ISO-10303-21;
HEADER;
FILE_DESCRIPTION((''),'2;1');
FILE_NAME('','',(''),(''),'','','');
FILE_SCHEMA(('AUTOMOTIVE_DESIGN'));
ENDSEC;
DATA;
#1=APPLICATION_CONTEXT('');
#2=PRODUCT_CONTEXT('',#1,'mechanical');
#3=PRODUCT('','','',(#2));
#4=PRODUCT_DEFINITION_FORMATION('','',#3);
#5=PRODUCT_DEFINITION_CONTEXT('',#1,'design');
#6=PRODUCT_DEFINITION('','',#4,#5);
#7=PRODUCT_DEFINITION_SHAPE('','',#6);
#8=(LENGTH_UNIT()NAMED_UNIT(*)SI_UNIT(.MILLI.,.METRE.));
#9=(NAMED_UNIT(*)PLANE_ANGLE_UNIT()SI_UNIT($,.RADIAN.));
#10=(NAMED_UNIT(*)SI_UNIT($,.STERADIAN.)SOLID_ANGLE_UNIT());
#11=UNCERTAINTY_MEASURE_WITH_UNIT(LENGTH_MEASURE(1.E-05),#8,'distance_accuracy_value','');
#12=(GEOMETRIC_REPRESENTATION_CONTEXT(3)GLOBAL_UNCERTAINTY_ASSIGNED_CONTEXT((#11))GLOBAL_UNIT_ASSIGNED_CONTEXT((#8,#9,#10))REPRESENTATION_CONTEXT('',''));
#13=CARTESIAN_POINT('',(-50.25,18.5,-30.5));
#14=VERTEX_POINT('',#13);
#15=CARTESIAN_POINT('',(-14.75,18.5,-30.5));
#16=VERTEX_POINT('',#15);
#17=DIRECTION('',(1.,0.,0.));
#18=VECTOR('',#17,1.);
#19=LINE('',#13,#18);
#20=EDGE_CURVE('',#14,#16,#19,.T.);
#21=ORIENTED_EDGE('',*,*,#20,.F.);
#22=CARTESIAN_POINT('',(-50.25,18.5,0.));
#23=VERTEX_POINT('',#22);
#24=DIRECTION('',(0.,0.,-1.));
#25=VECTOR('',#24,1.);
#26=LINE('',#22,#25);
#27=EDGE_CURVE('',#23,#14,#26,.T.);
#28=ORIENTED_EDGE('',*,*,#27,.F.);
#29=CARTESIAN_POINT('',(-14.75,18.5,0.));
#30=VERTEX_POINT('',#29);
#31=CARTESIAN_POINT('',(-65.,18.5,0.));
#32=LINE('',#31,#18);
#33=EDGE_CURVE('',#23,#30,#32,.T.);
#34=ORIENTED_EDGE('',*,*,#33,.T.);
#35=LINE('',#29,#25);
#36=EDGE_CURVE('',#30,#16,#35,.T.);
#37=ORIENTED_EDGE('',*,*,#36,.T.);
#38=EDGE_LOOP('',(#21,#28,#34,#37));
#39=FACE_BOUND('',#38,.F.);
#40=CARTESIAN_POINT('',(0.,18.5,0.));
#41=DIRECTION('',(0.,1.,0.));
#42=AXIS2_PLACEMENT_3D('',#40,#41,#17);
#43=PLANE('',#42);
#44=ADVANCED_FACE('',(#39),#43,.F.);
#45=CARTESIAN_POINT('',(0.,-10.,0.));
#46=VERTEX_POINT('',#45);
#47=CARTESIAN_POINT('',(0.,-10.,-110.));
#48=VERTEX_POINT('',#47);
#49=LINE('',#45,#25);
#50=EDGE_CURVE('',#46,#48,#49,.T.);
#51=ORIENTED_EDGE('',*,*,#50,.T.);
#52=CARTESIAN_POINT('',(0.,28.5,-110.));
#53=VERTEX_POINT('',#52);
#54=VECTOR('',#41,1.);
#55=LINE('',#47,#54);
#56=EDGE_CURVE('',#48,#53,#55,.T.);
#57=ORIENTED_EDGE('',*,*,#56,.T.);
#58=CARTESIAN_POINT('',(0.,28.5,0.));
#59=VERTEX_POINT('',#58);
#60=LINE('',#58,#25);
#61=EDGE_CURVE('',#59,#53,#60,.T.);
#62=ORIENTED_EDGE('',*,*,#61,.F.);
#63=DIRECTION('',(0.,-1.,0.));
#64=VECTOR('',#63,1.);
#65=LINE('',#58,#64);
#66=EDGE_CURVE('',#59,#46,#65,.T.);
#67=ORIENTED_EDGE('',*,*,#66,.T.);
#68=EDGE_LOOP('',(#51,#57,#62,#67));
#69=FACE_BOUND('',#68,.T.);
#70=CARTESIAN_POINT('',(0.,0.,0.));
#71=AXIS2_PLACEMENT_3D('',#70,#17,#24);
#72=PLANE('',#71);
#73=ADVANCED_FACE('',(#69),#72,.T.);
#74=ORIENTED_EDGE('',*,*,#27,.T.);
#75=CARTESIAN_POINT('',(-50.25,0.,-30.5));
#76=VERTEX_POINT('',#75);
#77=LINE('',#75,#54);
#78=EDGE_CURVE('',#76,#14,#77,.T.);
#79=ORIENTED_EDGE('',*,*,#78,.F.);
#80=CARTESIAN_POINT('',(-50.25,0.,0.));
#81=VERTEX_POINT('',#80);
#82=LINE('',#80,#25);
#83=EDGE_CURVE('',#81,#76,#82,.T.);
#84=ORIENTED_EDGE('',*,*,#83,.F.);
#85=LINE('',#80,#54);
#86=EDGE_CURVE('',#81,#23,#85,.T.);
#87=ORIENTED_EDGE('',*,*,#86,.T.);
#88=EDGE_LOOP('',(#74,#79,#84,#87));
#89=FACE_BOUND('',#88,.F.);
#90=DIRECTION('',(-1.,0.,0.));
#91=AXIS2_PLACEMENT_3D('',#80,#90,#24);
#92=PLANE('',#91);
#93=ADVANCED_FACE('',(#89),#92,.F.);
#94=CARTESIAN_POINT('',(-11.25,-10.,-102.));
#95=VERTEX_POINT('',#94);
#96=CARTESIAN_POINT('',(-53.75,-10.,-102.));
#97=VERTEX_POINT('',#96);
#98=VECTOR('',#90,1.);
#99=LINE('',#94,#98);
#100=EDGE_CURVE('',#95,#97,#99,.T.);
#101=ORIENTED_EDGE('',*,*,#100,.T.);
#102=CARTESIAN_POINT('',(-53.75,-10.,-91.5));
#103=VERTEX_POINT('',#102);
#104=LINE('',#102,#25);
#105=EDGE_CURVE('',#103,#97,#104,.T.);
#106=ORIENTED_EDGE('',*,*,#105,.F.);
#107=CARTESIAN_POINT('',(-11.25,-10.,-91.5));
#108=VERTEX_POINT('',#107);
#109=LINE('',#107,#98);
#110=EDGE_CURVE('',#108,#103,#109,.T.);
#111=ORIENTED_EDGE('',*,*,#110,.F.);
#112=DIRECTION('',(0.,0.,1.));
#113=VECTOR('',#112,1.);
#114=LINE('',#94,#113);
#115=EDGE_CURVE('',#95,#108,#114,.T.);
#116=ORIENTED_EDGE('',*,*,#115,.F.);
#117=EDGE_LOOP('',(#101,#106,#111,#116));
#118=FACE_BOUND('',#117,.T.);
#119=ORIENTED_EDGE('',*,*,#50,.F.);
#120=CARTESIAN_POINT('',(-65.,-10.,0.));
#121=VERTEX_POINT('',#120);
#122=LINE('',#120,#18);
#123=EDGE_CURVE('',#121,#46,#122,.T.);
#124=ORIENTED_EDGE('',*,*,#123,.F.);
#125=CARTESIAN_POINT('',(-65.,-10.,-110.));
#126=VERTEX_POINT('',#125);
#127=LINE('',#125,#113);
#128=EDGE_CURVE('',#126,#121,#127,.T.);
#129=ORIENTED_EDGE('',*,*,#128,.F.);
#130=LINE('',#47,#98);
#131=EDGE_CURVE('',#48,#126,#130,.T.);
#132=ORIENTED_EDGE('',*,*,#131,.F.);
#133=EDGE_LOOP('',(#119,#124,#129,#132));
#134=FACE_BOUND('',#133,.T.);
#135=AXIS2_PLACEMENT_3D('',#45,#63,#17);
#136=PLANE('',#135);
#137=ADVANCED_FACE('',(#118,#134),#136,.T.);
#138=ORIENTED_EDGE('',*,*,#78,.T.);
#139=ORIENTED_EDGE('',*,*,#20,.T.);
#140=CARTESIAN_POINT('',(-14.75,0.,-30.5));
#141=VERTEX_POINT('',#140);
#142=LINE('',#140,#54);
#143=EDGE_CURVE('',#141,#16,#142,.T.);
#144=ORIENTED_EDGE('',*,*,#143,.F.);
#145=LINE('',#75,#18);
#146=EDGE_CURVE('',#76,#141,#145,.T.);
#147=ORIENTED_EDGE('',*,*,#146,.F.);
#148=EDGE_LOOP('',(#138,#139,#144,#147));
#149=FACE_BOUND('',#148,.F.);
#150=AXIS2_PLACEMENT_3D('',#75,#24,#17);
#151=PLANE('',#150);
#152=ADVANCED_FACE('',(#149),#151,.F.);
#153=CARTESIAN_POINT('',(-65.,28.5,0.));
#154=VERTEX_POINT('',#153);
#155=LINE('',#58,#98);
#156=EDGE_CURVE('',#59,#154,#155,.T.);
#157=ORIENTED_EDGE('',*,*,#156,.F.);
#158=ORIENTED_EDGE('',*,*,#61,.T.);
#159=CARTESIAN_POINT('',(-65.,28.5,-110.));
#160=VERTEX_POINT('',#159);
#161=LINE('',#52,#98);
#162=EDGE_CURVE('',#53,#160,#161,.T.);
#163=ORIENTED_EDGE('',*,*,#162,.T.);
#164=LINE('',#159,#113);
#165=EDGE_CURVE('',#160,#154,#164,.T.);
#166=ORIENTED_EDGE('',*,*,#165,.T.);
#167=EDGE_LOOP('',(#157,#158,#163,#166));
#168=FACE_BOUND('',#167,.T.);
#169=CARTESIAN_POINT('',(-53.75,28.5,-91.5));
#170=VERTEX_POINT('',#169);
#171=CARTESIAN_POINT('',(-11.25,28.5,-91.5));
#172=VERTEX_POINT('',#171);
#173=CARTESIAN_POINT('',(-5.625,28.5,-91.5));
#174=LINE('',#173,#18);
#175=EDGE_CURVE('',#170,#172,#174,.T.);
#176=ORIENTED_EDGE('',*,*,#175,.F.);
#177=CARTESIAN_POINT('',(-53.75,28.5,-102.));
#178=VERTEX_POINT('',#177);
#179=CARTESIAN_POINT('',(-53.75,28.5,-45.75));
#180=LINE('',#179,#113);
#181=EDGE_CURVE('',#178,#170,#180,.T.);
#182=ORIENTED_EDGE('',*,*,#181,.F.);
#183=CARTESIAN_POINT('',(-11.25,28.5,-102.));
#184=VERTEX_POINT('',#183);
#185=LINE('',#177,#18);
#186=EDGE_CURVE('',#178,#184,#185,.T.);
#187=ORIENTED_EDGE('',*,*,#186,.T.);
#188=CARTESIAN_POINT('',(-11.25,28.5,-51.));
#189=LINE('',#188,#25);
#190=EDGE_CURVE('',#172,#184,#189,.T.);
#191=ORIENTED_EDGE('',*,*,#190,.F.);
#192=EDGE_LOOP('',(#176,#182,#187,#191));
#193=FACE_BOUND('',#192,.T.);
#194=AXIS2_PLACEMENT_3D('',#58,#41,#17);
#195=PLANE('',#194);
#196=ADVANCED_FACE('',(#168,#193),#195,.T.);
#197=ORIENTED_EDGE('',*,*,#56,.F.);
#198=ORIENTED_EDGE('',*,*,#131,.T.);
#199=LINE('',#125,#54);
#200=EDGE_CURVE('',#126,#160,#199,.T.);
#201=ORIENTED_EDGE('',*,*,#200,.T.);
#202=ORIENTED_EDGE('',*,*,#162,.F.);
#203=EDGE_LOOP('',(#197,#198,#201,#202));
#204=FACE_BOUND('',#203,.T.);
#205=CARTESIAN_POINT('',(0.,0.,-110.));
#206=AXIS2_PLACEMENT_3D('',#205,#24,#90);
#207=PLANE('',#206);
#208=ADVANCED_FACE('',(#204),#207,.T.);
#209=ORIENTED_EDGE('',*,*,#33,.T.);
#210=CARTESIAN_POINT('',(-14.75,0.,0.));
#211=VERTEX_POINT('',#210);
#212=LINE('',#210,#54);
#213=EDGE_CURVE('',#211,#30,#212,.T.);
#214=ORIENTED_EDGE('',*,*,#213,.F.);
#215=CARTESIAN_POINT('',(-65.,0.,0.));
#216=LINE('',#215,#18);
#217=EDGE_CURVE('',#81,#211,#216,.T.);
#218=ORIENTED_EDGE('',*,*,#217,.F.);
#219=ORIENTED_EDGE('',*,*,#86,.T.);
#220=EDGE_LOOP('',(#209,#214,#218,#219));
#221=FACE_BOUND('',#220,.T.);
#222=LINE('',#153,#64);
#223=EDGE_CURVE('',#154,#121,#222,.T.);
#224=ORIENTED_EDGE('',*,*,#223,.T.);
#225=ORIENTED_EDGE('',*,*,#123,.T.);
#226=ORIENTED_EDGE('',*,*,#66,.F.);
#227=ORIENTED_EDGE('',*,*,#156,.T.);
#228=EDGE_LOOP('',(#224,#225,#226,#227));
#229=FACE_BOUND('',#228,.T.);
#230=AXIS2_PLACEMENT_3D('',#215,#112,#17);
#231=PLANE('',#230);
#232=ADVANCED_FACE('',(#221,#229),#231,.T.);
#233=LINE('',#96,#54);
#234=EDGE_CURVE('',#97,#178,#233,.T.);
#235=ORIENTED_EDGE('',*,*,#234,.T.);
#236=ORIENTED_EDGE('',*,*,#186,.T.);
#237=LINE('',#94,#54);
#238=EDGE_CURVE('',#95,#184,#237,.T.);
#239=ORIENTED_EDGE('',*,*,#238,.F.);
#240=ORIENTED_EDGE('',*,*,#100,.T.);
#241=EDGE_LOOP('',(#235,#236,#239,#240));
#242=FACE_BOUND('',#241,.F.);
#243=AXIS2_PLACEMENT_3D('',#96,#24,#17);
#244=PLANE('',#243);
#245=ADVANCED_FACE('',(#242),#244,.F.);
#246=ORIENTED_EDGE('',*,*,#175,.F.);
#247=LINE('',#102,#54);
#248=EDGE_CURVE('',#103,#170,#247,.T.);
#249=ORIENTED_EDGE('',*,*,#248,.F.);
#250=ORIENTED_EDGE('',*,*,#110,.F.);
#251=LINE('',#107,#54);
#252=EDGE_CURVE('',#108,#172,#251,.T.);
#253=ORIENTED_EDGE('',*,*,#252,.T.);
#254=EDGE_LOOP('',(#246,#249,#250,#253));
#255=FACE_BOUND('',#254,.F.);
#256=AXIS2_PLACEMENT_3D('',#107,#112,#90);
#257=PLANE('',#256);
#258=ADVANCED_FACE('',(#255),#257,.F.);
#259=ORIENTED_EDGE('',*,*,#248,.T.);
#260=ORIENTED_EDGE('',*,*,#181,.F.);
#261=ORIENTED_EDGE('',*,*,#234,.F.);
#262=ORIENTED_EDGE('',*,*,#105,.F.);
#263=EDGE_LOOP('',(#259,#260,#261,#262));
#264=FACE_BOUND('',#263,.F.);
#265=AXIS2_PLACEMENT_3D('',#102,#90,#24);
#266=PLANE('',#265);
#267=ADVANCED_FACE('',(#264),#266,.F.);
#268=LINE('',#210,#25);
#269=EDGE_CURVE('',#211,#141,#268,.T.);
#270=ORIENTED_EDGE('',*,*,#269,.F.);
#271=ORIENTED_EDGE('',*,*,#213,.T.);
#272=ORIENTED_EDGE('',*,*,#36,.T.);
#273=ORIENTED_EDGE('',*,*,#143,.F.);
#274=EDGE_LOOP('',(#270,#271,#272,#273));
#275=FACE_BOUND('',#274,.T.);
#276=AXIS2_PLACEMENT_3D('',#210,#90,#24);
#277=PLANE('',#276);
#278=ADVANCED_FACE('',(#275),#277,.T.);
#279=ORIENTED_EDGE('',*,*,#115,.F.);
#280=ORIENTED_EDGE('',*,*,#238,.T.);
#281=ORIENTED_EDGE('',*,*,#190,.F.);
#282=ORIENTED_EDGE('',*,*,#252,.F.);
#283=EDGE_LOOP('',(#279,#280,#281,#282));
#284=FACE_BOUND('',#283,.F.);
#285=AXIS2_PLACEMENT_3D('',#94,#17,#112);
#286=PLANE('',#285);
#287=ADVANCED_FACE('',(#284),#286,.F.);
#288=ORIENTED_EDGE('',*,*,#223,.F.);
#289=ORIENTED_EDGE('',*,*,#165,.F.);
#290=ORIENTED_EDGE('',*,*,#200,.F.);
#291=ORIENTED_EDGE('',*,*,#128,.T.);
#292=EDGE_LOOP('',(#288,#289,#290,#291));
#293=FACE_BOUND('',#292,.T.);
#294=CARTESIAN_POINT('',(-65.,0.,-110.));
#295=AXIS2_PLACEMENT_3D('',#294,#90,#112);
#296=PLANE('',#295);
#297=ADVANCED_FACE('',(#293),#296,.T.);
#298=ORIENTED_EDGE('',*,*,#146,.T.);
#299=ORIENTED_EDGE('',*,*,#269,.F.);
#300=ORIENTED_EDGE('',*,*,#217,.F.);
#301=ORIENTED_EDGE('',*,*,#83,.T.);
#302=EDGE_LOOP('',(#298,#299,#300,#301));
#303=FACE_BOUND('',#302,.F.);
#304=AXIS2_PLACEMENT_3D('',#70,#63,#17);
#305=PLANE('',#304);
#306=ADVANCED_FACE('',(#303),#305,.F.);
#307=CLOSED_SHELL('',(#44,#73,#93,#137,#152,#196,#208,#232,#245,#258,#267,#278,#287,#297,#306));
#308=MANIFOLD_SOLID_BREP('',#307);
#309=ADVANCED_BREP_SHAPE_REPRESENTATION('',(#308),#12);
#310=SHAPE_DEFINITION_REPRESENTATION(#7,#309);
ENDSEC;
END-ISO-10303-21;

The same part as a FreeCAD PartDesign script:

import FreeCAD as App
import Part
import Sketcher
from FreeCAD import Vector

doc = App.newDocument("Part")
body = doc.addObject("PartDesign::Body", "Body")

sketch1 = body.newObject("Sketcher::SketchObject", "Sketch")
sketch1.AttachmentSupport = (doc.getObject("XZ_Plane"), [""])
sketch1.MapMode = "FlatFace"
sketch1.addGeometry([
    Part.LineSegment(Vector(-65, -110, 0), Vector(-65, 0, 0)),
    Part.LineSegment(Vector(-65, 0, 0), Vector(-50, 0, 0)),
    Part.LineSegment(Vector(-50, 0, 0), Vector(-50, -30, 0)),
    Part.LineSegment(Vector(-50, -30, 0), Vector(-15, -30, 0)),
    Part.LineSegment(Vector(-15, -30, 0), Vector(-15, 0, 0)),
    Part.LineSegment(Vector(-15, 0, 0), Vector(0, 0, 0)),
    Part.LineSegment(Vector(0, 0, 0), Vector(0, -110, 0)),
    Part.LineSegment(Vector(0, -110, 0), Vector(-65, -110, 0)),
], False)
sketch1.addConstraint([
    Sketcher.Constraint("Coincident", 0, 2, 1, 1),
    Sketcher.Constraint("Coincident", 1, 2, 2, 1),
    Sketcher.Constraint("Coincident", 2, 2, 3, 1),
    Sketcher.Constraint("Coincident", 3, 2, 4, 1),
    Sketcher.Constraint("Coincident", 4, 2, 5, 1),
    Sketcher.Constraint("Coincident", 5, 2, 6, 1),
    Sketcher.Constraint("Coincident", 6, 2, 7, 1),
    Sketcher.Constraint("Coincident", 7, 2, 0, 1),
    Sketcher.Constraint("Vertical", 0),
    Sketcher.Constraint("Horizontal", 1),
    Sketcher.Constraint("Vertical", 2),
    Sketcher.Constraint("Horizontal", 3),
    Sketcher.Constraint("Vertical", 4),
    Sketcher.Constraint("Horizontal", 5),
    Sketcher.Constraint("Vertical", 6),
    Sketcher.Constraint("Horizontal", 7),
    Sketcher.Constraint("Coincident", 5, 2, -1, 1),
    Sketcher.Constraint("PointOnObject", 0, 2, -1),
    Sketcher.Constraint("Equal", 1, 5),
    Sketcher.Constraint("DistanceX", 7, 2, 7, 1, 65.0),
    Sketcher.Constraint("DistanceY", 0, 1, 0, 2, 110.0),
    Sketcher.Constraint("DistanceY", 2, 2, 2, 1, 30.5),
    Sketcher.Constraint("DistanceX", 1, 1, 1, 2, 14.75),
])
pad1 = body.newObject("PartDesign::Pad", "Pad")
pad1.Profile = sketch1
pad1.Length = 18.5
pad1.Reversed = True

sketch2 = body.newObject("Sketcher::SketchObject", "Sketch001")
sketch2.AttachmentSupport = (doc.getObject("XZ_Plane"), [""])
sketch2.MapMode = "FlatFace"
sketch2.AttachmentOffset = App.Placement(Vector(0, 0, -18.5), App.Rotation())
sketch2.addGeometry([
    Part.LineSegment(Vector(0, 0, 0), Vector(0, -110, 0)),
    Part.LineSegment(Vector(0, -110, 0), Vector(-65, -110, 0)),
    Part.LineSegment(Vector(-65, -110, 0), Vector(-65, 0, 0)),
    Part.LineSegment(Vector(-65, 0, 0), Vector(0, 0, 0)),
], False)
sketch2.addConstraint([
    Sketcher.Constraint("Coincident", 0, 2, 1, 1),
    Sketcher.Constraint("Coincident", 1, 2, 2, 1),
    Sketcher.Constraint("Coincident", 2, 2, 3, 1),
    Sketcher.Constraint("Coincident", 3, 2, 0, 1),
    Sketcher.Constraint("Vertical", 0),
    Sketcher.Constraint("Horizontal", 1),
    Sketcher.Constraint("Vertical", 2),
    Sketcher.Constraint("Horizontal", 3),
    Sketcher.Constraint("Coincident", 3, 2, -1, 1),
    Sketcher.Constraint("DistanceX", 1, 2, 1, 1, 65.0),
    Sketcher.Constraint("DistanceY", 0, 2, 0, 1, 110.0),
])
pad2 = body.newObject("PartDesign::Pad", "Pad001")
pad2.Profile = sketch2
pad2.Length = 10
pad2.Reversed = True

sketch3 = body.newObject("Sketcher::SketchObject", "Sketch002")
sketch3.AttachmentSupport = (doc.getObject("XZ_Plane"), [""])
sketch3.MapMode = "FlatFace"
sketch3.addGeometry([
    Part.LineSegment(Vector(0, -110, 0), Vector(0, 0, 0)),
    Part.LineSegment(Vector(0, 0, 0), Vector(-65, 0, 0)),
    Part.LineSegment(Vector(-65, 0, 0), Vector(-65, -110, 0)),
    Part.LineSegment(Vector(-65, -110, 0), Vector(0, -110, 0)),
], False)
sketch3.addConstraint([
    Sketcher.Constraint("Coincident", 0, 2, 1, 1),
    Sketcher.Constraint("Coincident", 1, 2, 2, 1),
    Sketcher.Constraint("Coincident", 2, 2, 3, 1),
    Sketcher.Constraint("Coincident", 3, 2, 0, 1),
    Sketcher.Constraint("Vertical", 0),
    Sketcher.Constraint("Horizontal", 1),
    Sketcher.Constraint("Vertical", 2),
    Sketcher.Constraint("Horizontal", 3),
    Sketcher.Constraint("Coincident", 0, 2, -1, 1),
    Sketcher.Constraint("DistanceX", 1, 2, 1, 1, 65.0),
    Sketcher.Constraint("DistanceY", 0, 1, 0, 2, 110.0),
])
pad3 = body.newObject("PartDesign::Pad", "Pad002")
pad3.Profile = sketch3
pad3.Length = 10

sketch4 = body.newObject("Sketcher::SketchObject", "Sketch003")
sketch4.AttachmentSupport = (doc.getObject("XZ_Plane"), [""])
sketch4.MapMode = "FlatFace"
sketch4.AttachmentOffset = App.Placement(Vector(0, 0, 10), App.Rotation())
sketch4.addGeometry([
    Part.LineSegment(Vector(-54, -102, 0), Vector(-11, -102, 0)),
    Part.LineSegment(Vector(-11, -102, 0), Vector(-11, -92, 0)),
    Part.LineSegment(Vector(-11, -92, 0), Vector(-54, -92, 0)),
    Part.LineSegment(Vector(-54, -92, 0), Vector(-54, -102, 0)),
], False)
sketch4.addConstraint([
    Sketcher.Constraint("Coincident", 0, 2, 1, 1),
    Sketcher.Constraint("Coincident", 1, 2, 2, 1),
    Sketcher.Constraint("Coincident", 2, 2, 3, 1),
    Sketcher.Constraint("Coincident", 3, 2, 0, 1),
    Sketcher.Constraint("Horizontal", 0),
    Sketcher.Constraint("Vertical", 1),
    Sketcher.Constraint("Horizontal", 2),
    Sketcher.Constraint("Vertical", 3),
    Sketcher.Constraint("DistanceX", 0, 1, 0, 2, 42.5),
    Sketcher.Constraint("DistanceY", 1, 1, 1, 2, 10.5),
    Sketcher.Constraint("DistanceY", 0, 2, -1, 1, 102.0),
    Sketcher.Constraint("DistanceX", 0, 2, -1, 1, 11.25),
])
pocket1 = body.newObject("PartDesign::Pocket", "Pocket")
pocket1.Profile = sketch4
pocket1.Type = "ThroughAll"

doc.recompute()
